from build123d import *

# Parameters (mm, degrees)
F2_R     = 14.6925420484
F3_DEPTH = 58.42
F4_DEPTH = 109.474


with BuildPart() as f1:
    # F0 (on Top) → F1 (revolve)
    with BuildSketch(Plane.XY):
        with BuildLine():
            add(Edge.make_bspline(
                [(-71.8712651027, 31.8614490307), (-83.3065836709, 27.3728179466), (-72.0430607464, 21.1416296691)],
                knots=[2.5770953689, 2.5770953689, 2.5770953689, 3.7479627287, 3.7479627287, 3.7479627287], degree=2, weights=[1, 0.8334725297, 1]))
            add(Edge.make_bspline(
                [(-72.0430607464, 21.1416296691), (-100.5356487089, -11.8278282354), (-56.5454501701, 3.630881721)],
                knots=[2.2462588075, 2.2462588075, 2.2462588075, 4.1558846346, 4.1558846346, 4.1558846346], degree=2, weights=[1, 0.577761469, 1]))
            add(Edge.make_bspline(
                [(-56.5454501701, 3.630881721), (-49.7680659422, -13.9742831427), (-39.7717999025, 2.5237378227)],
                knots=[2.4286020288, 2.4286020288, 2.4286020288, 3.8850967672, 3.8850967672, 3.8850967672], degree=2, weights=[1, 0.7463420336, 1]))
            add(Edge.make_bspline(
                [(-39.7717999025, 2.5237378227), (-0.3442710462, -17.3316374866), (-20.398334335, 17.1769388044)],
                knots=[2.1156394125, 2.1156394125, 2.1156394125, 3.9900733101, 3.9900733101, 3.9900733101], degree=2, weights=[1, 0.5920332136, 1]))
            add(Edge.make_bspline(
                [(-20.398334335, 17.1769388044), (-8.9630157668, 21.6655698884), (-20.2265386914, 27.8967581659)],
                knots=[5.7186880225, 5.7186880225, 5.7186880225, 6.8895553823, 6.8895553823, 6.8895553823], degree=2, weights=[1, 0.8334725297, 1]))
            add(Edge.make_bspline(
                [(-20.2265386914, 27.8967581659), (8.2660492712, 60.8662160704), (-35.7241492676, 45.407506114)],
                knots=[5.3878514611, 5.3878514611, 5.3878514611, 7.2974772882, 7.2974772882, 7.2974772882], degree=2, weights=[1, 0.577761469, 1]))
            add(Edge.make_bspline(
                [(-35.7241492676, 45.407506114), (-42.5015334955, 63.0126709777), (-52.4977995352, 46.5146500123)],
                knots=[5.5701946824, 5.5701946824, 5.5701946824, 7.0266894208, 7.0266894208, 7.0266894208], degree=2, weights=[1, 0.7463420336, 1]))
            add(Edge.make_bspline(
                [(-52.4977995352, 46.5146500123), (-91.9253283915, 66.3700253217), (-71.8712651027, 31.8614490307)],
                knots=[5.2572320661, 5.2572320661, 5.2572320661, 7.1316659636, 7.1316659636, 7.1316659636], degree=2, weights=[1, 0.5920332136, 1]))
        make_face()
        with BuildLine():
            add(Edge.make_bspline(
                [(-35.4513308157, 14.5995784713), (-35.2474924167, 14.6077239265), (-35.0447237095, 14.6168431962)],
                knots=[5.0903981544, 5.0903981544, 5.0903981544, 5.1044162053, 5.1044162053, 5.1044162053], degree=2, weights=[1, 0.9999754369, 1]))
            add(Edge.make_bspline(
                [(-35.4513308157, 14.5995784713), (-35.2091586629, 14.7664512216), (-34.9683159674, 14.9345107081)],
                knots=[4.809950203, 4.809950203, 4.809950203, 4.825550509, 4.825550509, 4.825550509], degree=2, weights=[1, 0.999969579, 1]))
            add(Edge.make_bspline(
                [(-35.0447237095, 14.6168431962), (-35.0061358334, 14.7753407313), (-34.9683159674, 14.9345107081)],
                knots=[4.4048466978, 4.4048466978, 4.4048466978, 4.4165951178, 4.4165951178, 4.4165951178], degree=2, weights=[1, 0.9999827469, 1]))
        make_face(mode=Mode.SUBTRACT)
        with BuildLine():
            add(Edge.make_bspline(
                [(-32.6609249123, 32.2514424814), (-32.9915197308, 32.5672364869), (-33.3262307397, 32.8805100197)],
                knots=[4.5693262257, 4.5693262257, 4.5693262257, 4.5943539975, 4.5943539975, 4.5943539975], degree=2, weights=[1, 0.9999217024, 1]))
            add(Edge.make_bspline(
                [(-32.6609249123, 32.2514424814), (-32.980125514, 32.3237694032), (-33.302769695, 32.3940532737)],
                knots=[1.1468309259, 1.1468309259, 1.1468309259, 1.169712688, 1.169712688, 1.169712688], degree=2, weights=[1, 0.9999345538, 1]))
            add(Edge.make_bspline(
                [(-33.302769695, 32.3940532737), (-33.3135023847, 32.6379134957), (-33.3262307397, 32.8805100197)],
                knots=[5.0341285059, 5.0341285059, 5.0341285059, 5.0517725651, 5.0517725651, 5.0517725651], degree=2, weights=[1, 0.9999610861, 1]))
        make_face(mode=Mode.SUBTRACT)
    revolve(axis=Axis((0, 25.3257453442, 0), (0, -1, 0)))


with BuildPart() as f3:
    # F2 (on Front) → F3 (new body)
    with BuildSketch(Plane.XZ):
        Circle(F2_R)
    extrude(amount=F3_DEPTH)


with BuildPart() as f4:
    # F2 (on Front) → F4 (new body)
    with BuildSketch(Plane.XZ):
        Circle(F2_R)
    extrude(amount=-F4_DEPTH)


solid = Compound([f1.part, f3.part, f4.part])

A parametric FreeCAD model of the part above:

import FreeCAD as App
import Part
import Sketcher
Q = App.Units.Quantity

doc = App.newDocument("Part")
params = doc.addObject("Spreadsheet::Sheet", "Params")
for row, (alias, value) in enumerate([
    ("revolution_angle", "360 deg"),
    ("pad1_length", "2.3 in"),
    ("pad2_length", "4.31 in"),
], start=1):
    params.set(f"A{row}", alias)
    params.set(f"B{row}", "=" + value)
    params.setAlias(f"B{row}", alias)

body = doc.addObject("PartDesign::Body", "Body")

# Sketch on XY plane
sketch1 = body.newObject("Sketcher::SketchObject", "Sketch")
sketch1.AttachmentSupport = (doc.getObject("XY_Plane"), [""])
sketch1.MapMode = "FlatFace"
sketch1.addGeometry([
    Part.BSplineCurve([App.Vector(-71.871265, 31.861449, 0), App.Vector(-83.306584, 27.372818, 0), App.Vector(-72.043061, 21.14163, 0)], [3, 3], [2.577095369, 3.747962729], False, 2, [1, 0.83347253, 1], False),  # 0
    Part.BSplineCurve([App.Vector(-72.043061, 21.14163, 0), App.Vector(-100.535649, -11.827828, 0), App.Vector(-56.54545, 3.630882, 0)], [3, 3], [2.246258807, 4.155884635], False, 2, [1, 0.577761469, 1], False),  # 1
    Part.BSplineCurve([App.Vector(-56.54545, 3.630882, 0), App.Vector(-49.768066, -13.974283, 0), App.Vector(-39.7718, 2.523738, 0)], [3, 3], [2.428602029, 3.885096767], False, 2, [1, 0.746342034, 1], False),  # 2
    Part.BSplineCurve([App.Vector(-39.7718, 2.523738, 0), App.Vector(-0.344271, -17.331637, 0), App.Vector(-20.398334, 17.176939, 0)], [3, 3], [2.115639413, 3.99007331], False, 2, [1, 0.592033214, 1], False),  # 3
    Part.BSplineCurve([App.Vector(-20.398334, 17.176939, 0), App.Vector(-8.963016, 21.66557, 0), App.Vector(-20.226539, 27.896758, 0)], [3, 3], [5.718688023, 6.889555382], False, 2, [1, 0.83347253, 1], False),  # 4
    Part.BSplineCurve([App.Vector(-20.226539, 27.896758, 0), App.Vector(8.266049, 60.866216, 0), App.Vector(-35.724149, 45.407506, 0)], [3, 3], [5.387851461, 7.297477288], False, 2, [1, 0.577761469, 1], False),  # 5
    Part.BSplineCurve([App.Vector(-35.724149, 45.407506, 0), App.Vector(-42.501533, 63.012671, 0), App.Vector(-52.4978, 46.51465, 0)], [3, 3], [5.570194682, 7.026689421], False, 2, [1, 0.746342034, 1], False),  # 6
    Part.BSplineCurve([App.Vector(-52.4978, 46.51465, 0), App.Vector(-91.925328, 66.370025, 0), App.Vector(-71.871265, 31.861449, 0)], [3, 3], [5.257232066, 7.131665964], False, 2, [1, 0.592033214, 1], False),  # 7
    Part.BSplineCurve([App.Vector(-35.451331, 14.599578, 0), App.Vector(-35.247492, 14.607724, 0), App.Vector(-35.044724, 14.616843, 0)], [3, 3], [5.090398154, 5.104416205], False, 2, [1, 0.999975437, 1], False),  # 8
    Part.BSplineCurve([App.Vector(-35.451331, 14.599578, 0), App.Vector(-35.209159, 14.766451, 0), App.Vector(-34.968316, 14.934511, 0)], [3, 3], [4.809950203, 4.825550509], False, 2, [1, 0.999969579, 1], False),  # 9
    Part.BSplineCurve([App.Vector(-35.044724, 14.616843, 0), App.Vector(-35.006136, 14.775341, 0), App.Vector(-34.968316, 14.934511, 0)], [3, 3], [4.404846698, 4.416595118], False, 2, [1, 0.999982747, 1], False),  # 10
    Part.BSplineCurve([App.Vector(-32.660925, 32.251442, 0), App.Vector(-32.99152, 32.567236, 0), App.Vector(-33.326231, 32.88051, 0)], [3, 3], [4.569326226, 4.594353997], False, 2, [1, 0.999921702, 1], False),  # 11
    Part.BSplineCurve([App.Vector(-32.660925, 32.251442, 0), App.Vector(-32.980126, 32.323769, 0), App.Vector(-33.30277, 32.394053, 0)], [3, 3], [1.146830926, 1.169712688], False, 2, [1, 0.999934554, 1], False),  # 12
    Part.BSplineCurve([App.Vector(-33.30277, 32.394053, 0), App.Vector(-33.313502, 32.637913, 0), App.Vector(-33.326231, 32.88051, 0)], [3, 3], [5.034128506, 5.051772565], False, 2, [1, 0.999961086, 1], False),  # 13
], False)
sketch1.addConstraint([
    Sketcher.Constraint("Block", 0),
    Sketcher.Constraint("Block", 1),
    Sketcher.Constraint("Block", 2),
    Sketcher.Constraint("Block", 3),
    Sketcher.Constraint("Block", 4),
    Sketcher.Constraint("Block", 5),
    Sketcher.Constraint("Block", 6),
    Sketcher.Constraint("Block", 7),
    Sketcher.Constraint("Block", 8),
    Sketcher.Constraint("Block", 9),
    Sketcher.Constraint("Block", 10),
    Sketcher.Constraint("Block", 11),
    Sketcher.Constraint("Block", 12),
    Sketcher.Constraint("Block", 13),
])
revolution = body.newObject("PartDesign::Revolution", "Revolution")
revolution.Profile = sketch1
revolution.ReferenceAxis = (sketch1, ["V_Axis"])
revolution.setExpression("Angle", "Params.revolution_angle")
body2 = doc.addObject("PartDesign::Body", "Body001")

# Sketch on XZ plane
sketch2 = body2.newObject("Sketcher::SketchObject", "Sketch001")
sketch2.AttachmentSupport = (doc.getObject("XZ_Plane001"), [""])
sketch2.MapMode = "FlatFace"
sketch2.addGeometry(Part.Circle(App.Vector(0, 0, 0), App.Vector(0, 0, 1), 15), False)
sketch2.addConstraint([
    Sketcher.Constraint("Coincident", 0, 3, -1, 1),
    Sketcher.Constraint("Diameter", 0, Q("29.385084 mm")),
])
pad1 = body2.newObject("PartDesign::Pad", "Pad")
pad1.Profile = sketch2
pad1.setExpression("Length", "Params.pad1_length")
body3 = doc.addObject("PartDesign::Body", "Body002")

# Sketch on XZ plane
sketch3 = body3.newObject("Sketcher::SketchObject", "Sketch002")
sketch3.AttachmentSupport = (doc.getObject("XZ_Plane002"), [""])
sketch3.MapMode = "FlatFace"
sketch3.addGeometry(Part.Circle(App.Vector(0, 0, 0), App.Vector(0, 0, 1), 15), False)
sketch3.addConstraint([
    Sketcher.Constraint("Coincident", 0, 3, -1, 1),
    Sketcher.Constraint("Diameter", 0, Q("29.385084 mm")),
])
pad2 = body3.newObject("PartDesign::Pad", "Pad001")
pad2.Profile = sketch3
pad2.setExpression("Length", "Params.pad2_length")
pad2.Reversed = True

doc.recompute()
